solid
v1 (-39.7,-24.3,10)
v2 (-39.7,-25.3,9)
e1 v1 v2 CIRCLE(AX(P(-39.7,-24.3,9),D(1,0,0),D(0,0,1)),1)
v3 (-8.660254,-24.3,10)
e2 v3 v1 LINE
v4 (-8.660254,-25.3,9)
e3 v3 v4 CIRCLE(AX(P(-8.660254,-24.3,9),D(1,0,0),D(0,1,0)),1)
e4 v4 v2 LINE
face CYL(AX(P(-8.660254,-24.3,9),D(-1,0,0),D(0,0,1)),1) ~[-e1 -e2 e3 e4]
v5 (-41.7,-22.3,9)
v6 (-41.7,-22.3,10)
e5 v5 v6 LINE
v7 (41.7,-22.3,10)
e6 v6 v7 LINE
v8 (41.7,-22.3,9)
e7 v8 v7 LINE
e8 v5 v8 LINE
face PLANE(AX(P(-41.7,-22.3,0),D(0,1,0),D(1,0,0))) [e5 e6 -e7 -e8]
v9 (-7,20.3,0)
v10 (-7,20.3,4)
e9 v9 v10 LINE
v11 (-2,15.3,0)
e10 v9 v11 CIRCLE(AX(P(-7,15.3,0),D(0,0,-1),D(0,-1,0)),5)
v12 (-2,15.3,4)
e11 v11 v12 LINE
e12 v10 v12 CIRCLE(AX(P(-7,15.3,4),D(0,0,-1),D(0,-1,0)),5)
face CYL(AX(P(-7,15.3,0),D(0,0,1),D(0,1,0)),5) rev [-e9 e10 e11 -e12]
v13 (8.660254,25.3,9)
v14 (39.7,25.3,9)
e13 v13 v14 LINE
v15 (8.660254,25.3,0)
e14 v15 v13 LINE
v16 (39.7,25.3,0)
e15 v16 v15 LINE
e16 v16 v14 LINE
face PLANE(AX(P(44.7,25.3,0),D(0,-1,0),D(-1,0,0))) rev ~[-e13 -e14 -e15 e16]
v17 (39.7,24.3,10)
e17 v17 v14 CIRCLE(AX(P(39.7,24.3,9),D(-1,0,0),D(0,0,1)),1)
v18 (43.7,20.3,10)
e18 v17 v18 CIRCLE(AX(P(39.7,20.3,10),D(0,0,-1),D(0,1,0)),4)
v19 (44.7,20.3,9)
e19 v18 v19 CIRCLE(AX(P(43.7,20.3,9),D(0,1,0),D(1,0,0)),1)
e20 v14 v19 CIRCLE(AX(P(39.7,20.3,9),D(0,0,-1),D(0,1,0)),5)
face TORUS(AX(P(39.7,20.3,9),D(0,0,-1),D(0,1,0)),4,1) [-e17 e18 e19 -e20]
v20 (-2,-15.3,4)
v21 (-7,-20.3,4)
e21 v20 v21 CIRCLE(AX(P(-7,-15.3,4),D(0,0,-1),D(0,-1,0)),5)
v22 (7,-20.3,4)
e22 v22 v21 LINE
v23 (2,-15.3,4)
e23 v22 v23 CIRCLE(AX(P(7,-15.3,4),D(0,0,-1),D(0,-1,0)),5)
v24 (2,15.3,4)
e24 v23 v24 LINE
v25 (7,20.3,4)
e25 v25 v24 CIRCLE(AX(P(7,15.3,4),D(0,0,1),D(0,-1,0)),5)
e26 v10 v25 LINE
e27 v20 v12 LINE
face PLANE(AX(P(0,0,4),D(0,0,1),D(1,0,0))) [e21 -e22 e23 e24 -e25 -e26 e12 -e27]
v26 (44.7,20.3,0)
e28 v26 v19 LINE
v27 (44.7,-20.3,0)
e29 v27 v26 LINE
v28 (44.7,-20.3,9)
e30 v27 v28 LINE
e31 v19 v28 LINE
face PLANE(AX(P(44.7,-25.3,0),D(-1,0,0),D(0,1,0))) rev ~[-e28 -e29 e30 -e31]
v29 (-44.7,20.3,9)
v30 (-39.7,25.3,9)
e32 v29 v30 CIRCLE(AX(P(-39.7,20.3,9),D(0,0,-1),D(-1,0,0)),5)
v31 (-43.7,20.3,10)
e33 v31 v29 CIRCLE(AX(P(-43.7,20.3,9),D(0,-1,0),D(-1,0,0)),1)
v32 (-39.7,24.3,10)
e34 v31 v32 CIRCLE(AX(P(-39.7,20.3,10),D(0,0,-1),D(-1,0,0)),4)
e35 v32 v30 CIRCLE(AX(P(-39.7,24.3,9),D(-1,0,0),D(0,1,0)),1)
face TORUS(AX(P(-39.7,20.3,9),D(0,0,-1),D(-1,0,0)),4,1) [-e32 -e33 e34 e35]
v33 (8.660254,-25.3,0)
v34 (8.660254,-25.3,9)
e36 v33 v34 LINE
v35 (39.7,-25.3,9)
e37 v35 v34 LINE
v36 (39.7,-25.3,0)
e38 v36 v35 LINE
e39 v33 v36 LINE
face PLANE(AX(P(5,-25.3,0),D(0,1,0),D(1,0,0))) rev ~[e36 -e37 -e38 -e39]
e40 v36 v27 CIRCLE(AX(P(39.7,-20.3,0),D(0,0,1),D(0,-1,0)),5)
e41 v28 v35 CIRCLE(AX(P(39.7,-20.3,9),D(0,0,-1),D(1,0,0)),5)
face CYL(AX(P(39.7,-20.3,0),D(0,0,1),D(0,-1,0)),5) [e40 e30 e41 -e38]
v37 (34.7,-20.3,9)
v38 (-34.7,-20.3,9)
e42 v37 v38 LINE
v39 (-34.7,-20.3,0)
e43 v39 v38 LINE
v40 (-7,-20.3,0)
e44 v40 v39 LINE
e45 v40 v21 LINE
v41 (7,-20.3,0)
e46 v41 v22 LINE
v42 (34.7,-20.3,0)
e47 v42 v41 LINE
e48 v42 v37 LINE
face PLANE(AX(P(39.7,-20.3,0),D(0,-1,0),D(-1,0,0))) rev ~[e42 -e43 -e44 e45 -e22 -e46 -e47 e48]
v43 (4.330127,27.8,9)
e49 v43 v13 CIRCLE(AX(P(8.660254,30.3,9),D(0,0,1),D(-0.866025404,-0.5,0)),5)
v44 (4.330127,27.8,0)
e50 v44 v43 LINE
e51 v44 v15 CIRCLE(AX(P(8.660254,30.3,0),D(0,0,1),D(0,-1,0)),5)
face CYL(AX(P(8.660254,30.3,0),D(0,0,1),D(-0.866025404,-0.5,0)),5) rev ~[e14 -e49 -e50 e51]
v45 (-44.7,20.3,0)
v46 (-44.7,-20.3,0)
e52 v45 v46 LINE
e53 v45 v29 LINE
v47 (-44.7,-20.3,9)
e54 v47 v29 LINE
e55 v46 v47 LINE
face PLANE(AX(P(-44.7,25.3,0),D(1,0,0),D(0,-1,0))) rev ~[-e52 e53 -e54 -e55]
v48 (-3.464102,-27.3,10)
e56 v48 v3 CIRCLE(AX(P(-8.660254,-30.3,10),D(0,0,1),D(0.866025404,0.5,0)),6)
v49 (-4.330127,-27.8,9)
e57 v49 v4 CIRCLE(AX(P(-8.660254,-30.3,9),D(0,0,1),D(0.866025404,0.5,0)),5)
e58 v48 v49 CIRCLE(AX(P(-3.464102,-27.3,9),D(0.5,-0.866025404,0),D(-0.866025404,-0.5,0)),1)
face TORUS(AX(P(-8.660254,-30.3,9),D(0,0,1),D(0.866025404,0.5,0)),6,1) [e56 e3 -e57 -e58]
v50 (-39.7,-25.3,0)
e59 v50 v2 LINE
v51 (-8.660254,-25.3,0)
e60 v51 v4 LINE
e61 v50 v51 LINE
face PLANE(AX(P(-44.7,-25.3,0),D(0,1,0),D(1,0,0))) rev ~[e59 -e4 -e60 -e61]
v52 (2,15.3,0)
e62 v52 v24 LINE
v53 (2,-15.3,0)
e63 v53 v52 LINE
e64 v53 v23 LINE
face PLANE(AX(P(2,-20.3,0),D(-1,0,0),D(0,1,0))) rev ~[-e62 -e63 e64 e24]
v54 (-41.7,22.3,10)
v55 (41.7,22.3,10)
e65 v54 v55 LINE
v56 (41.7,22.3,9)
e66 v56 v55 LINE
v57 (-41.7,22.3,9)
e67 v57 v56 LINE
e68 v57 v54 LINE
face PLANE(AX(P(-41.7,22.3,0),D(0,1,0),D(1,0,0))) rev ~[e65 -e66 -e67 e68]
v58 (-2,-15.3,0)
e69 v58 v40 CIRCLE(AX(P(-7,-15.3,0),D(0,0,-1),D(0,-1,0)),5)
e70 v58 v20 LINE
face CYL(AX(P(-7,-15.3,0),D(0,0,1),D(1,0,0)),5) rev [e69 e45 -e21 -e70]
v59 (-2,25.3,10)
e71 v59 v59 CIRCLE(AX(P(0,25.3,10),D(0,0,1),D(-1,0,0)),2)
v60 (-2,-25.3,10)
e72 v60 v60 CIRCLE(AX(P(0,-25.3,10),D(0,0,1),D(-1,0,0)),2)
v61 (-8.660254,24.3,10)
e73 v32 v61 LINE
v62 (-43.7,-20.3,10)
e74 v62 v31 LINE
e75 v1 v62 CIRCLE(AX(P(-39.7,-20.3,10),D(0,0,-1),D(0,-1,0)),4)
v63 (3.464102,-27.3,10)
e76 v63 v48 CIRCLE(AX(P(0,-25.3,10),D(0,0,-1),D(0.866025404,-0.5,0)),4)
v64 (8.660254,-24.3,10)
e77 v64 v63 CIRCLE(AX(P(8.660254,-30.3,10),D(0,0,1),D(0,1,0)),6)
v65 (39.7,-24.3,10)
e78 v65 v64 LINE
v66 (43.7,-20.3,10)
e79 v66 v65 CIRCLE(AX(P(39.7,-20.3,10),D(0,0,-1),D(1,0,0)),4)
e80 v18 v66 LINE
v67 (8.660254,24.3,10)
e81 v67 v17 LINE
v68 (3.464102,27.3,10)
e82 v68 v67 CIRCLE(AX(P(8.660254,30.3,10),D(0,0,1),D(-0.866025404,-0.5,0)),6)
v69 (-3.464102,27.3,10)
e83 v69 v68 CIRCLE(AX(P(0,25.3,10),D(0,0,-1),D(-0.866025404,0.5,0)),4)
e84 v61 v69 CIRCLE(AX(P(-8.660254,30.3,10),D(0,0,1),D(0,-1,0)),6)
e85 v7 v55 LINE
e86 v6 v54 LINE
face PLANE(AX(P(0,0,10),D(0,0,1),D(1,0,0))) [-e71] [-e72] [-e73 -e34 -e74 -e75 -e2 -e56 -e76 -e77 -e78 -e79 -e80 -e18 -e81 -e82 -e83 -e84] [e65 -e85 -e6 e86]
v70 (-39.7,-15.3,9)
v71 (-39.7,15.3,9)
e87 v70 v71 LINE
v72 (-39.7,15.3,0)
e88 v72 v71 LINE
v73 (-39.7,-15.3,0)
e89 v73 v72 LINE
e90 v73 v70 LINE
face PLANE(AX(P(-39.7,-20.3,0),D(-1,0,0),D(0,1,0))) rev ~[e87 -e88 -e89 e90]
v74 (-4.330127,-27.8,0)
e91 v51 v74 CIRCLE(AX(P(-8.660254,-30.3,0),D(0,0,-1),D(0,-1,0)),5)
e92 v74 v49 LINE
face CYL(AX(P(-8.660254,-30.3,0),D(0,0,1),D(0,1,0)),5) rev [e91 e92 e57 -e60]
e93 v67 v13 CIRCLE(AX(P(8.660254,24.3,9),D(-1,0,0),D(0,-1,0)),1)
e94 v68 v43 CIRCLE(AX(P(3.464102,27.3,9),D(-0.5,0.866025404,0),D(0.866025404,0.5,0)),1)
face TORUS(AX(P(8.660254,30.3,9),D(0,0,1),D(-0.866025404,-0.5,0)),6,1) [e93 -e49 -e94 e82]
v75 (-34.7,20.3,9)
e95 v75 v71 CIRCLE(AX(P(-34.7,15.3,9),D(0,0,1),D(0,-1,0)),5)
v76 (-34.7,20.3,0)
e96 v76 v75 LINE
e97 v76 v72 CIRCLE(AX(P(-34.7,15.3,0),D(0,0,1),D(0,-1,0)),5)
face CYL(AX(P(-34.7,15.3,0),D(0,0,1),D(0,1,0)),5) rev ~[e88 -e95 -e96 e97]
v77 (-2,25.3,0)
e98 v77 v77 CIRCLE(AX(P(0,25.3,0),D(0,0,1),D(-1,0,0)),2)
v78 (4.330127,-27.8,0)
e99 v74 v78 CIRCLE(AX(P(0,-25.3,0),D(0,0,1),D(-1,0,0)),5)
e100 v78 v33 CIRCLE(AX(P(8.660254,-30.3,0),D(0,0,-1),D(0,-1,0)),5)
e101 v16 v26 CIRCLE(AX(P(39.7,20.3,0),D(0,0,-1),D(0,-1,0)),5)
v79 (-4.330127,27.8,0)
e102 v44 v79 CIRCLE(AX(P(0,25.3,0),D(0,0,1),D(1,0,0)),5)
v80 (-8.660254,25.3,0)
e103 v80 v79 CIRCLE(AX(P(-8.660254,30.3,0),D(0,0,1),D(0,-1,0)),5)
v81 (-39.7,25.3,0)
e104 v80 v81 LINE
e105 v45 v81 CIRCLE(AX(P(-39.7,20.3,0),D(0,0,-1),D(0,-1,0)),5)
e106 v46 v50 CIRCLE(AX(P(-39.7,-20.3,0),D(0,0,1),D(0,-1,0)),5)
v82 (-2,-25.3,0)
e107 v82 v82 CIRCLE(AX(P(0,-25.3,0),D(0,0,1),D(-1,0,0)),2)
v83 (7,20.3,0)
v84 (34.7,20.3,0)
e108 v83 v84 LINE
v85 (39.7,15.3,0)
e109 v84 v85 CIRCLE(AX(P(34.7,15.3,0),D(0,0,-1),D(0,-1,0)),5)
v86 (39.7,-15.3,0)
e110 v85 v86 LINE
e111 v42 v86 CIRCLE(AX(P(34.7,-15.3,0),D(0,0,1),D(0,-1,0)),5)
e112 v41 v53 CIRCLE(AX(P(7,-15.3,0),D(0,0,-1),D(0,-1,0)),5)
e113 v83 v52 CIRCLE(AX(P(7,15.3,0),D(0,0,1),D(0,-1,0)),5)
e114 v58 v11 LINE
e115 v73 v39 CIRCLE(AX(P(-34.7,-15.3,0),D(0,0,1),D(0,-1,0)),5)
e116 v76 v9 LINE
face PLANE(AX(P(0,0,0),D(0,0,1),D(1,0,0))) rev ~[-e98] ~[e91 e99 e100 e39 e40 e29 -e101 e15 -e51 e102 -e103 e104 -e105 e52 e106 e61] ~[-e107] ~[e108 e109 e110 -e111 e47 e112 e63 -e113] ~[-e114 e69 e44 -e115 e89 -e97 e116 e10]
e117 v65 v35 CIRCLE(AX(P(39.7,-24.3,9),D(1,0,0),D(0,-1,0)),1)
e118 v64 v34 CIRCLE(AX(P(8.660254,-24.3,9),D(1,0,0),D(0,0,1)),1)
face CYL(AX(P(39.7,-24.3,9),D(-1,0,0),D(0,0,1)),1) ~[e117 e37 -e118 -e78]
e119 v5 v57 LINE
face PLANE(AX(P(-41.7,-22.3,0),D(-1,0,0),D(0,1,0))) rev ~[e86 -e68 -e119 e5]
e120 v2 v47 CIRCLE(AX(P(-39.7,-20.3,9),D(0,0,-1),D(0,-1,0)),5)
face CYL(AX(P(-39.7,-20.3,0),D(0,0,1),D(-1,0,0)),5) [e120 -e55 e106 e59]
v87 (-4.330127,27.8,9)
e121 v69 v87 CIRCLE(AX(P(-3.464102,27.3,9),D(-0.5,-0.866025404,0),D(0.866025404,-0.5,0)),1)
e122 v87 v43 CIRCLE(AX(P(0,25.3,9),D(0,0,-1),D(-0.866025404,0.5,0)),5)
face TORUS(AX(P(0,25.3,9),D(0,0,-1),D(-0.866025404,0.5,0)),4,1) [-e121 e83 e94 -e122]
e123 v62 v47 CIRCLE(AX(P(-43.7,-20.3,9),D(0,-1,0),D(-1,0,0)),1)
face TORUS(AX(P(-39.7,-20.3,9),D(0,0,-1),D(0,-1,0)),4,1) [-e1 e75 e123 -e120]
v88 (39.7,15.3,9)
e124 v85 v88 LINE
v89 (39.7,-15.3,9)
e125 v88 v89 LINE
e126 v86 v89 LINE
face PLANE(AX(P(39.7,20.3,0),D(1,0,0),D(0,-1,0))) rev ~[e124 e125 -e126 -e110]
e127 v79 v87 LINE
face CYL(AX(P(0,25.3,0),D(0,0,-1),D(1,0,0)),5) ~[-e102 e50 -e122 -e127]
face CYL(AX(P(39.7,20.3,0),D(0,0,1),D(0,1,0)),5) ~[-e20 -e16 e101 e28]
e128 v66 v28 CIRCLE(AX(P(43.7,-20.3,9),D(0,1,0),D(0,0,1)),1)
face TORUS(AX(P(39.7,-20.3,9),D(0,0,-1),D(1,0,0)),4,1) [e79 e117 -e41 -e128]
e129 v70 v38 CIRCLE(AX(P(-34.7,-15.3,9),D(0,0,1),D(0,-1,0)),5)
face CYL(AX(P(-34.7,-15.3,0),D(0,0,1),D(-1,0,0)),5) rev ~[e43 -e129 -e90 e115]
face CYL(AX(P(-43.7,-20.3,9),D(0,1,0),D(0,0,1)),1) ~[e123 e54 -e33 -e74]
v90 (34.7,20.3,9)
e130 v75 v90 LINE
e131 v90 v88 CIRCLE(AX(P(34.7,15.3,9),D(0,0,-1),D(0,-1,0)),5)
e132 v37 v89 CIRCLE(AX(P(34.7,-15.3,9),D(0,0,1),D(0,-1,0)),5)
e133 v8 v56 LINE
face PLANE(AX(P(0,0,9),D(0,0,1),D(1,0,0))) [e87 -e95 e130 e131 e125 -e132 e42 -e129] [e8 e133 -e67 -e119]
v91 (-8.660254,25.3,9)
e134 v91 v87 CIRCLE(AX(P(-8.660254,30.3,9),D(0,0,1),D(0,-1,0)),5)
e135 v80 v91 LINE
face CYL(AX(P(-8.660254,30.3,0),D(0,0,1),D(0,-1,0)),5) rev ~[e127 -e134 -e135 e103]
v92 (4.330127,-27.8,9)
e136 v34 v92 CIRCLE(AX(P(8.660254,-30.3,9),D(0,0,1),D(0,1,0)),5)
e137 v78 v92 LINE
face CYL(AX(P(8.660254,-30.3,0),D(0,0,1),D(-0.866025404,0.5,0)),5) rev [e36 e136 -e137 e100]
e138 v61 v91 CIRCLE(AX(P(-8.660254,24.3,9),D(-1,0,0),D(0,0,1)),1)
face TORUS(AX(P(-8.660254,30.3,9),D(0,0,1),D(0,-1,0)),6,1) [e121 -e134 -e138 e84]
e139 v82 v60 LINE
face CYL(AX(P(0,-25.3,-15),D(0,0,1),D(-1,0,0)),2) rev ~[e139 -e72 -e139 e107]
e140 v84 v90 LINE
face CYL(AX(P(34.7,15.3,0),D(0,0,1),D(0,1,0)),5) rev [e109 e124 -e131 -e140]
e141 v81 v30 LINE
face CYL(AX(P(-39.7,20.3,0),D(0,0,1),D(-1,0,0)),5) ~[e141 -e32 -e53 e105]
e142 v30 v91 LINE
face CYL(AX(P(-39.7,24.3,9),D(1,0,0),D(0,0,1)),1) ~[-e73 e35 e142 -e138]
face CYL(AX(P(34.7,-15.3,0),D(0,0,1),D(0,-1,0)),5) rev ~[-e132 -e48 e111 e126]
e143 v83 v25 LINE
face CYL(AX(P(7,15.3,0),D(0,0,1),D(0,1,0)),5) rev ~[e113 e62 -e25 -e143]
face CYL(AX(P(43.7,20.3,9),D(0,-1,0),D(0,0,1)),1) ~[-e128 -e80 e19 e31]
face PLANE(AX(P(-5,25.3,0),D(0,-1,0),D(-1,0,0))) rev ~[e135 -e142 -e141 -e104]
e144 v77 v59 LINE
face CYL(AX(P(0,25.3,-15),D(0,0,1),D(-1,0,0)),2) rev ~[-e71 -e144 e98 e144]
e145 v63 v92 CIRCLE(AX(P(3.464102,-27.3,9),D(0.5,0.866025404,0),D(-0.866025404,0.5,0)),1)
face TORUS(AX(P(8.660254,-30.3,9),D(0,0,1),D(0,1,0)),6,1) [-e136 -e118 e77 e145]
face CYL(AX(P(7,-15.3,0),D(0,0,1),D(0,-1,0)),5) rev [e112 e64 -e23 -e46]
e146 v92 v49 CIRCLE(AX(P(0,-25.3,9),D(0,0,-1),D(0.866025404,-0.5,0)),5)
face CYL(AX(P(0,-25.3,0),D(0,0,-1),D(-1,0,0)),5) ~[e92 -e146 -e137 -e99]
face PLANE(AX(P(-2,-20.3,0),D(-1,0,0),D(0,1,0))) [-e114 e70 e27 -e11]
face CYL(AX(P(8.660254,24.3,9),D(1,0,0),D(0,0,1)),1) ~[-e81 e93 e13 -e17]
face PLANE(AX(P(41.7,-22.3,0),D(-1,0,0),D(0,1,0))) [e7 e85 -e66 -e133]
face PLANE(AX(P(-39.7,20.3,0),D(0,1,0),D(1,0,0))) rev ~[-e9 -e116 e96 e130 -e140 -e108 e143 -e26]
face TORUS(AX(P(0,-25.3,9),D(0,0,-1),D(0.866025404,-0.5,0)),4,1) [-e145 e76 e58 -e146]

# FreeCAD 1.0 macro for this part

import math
import FreeCAD as App
import Part
import Sketcher
Q = App.Units.Quantity


def edges_at(feature, points):
    """Names of the edges that pass closest to the given points."""
    edges = feature.Shape.Edges
    near = lambda p: min(range(len(edges)), key=lambda i: edges[i].distToShape(Part.Vertex(*p))[0])
    return sorted({f"Edge{near(p) + 1}" for p in points})


def add_polygon(sketch, points):
    """Adds a closed chain of lines whose ends are joined by coincident constraints."""
    first, n = sketch.GeometryCount, len(points)
    for a, b in zip(points, points[1:] + points[:1]):
        sketch.addGeometry(Part.LineSegment(App.Vector(*a, 0), App.Vector(*b, 0)), False)
    for i in range(n):
        sketch.addConstraint(Sketcher.Constraint("Coincident", first + i, 2, first + (i + 1) % n, 1))

doc = App.newDocument("Part")
body = doc.addObject("PartDesign::Body", "Body")

# Sketch on XY plane
sketch1 = body.newObject("Sketcher::SketchObject", "Sketch")
sketch1.AttachmentSupport = (doc.getObject("XY_Plane"), [""])
sketch1.MapMode = "FlatFace"
add_polygon(sketch1, [(-42, 22), (-42, -22), (42, -22), (42, 22)])  # lines 0-3
add_polygon(sketch1, [(40, -20), (-40, -20), (-40, 20), (40, 20)])  # lines 4-7
sketch1.addConstraint([
    Sketcher.Constraint("Vertical", 0),
    Sketcher.Constraint("Horizontal", 1),
    Sketcher.Constraint("Vertical", 2),
    Sketcher.Constraint("Horizontal", 3),
    Sketcher.Constraint("Horizontal", 4),
    Sketcher.Constraint("Vertical", 5),
    Sketcher.Constraint("Horizontal", 6),
    Sketcher.Constraint("Vertical", 7),
    Sketcher.Constraint("Symmetric", 0, 2, 2, 2, -1, 1),
    Sketcher.Constraint("Symmetric", 4, 2, 6, 2, -1, 1),
    Sketcher.Constraint("DistanceX", 1, 1, 1, 2, Q("83.4 mm")),
    Sketcher.Constraint("DistanceX", 4, 2, 4, 1, Q("79.4 mm")),
    Sketcher.Constraint("DistanceY", 0, 2, 0, 1, Q("44.6 mm")),
    Sketcher.Constraint("DistanceY", 5, 1, 5, 2, Q("40.6 mm")),
])
pad1 = body.newObject("PartDesign::Pad", "Pad")
pad1.Profile = sketch1
pad1.Length = 9

# Sketch on XY plane
sketch2 = body.newObject("Sketcher::SketchObject", "Sketch001")
sketch2.AttachmentSupport = (doc.getObject("XY_Plane"), [""])
sketch2.MapMode = "FlatFace"
sketch2.addGeometry(Part.LineSegment(App.Vector(-45, 25, 0), App.Vector(-45, -25, 0)), False)  # 0
sketch2.addGeometry(Part.LineSegment(App.Vector(-45, -25, 0), App.Vector(-5, -25, 0)), False)  # 1
sketch2.addGeometry(Part.ArcOfCircle(Part.Circle(App.Vector(0, -25, 0), App.Vector(0, 0, 1), 5), math.radians(180), math.radians(360)), False)  # 2
sketch2.addGeometry(Part.LineSegment(App.Vector(5, -25, 0), App.Vector(45, -25, 0)), False)  # 3
sketch2.addGeometry(Part.LineSegment(App.Vector(45, -25, 0), App.Vector(45, 25, 0)), False)  # 4
sketch2.addGeometry(Part.LineSegment(App.Vector(45, 25, 0), App.Vector(5, 25, 0)), False)  # 5
sketch2.addGeometry(Part.ArcOfCircle(Part.Circle(App.Vector(0, 25, 0), App.Vector(0, 0, 1), 5), math.radians(0), math.radians(180)), False)  # 6
sketch2.addGeometry(Part.LineSegment(App.Vector(-5, 25, 0), App.Vector(-45, 25, 0)), False)  # 7
add_polygon(sketch2, [(42, -22), (-42, -22), (-42, 22), (42, 22)])  # lines 8-11
sketch2.addConstraint([
    Sketcher.Constraint("Coincident", 0, 2, 1, 1),
    Sketcher.Constraint("Coincident", 1, 2, 2, 1),
    Sketcher.Constraint("Coincident", 2, 2, 3, 1),
    Sketcher.Constraint("Coincident", 3, 2, 4, 1),
    Sketcher.Constraint("Coincident", 4, 2, 5, 1),
    Sketcher.Constraint("Coincident", 5, 2, 6, 1),
    Sketcher.Constraint("Coincident", 6, 2, 7, 1),
    Sketcher.Constraint("Coincident", 7, 2, 0, 1),
    Sketcher.Constraint("Vertical", 0),
    Sketcher.Constraint("Horizontal", 1),
    Sketcher.Constraint("Horizontal", 3),
    Sketcher.Constraint("Vertical", 4),
    Sketcher.Constraint("Horizontal", 5),
    Sketcher.Constraint("Horizontal", 7),
    Sketcher.Constraint("Horizontal", 8),
    Sketcher.Constraint("Vertical", 9),
    Sketcher.Constraint("Horizontal", 10),
    Sketcher.Constraint("Vertical", 11),
    Sketcher.Constraint("Equal", 2, 6),
    Sketcher.Constraint("Symmetric", 2, 3, 6, 3, -1, 1),
    Sketcher.Constraint("Symmetric", 0, 2, 4, 2, -1, 1),
    Sketcher.Constraint("Symmetric", 8, 2, 10, 2, -1, 1),
    Sketcher.Constraint("Symmetric", 1, 2, 2, 2, -2),
    Sketcher.Constraint("Horizontal", 2, 3, 0, 2),
    Sketcher.Constraint("Horizontal", 5, 2, 6, 2),
    Sketcher.Constraint("Radius", 2, Q("5 mm")),
    Sketcher.Constraint("DistanceX", 1, 1, 1, 2, Q("39.7 mm")),
    Sketcher.Constraint("DistanceX", 8, 2, 8, 1, Q("83.4 mm")),
    Sketcher.Constraint("DistanceY", 0, 2, 0, 1, Q("50.6 mm")),
    Sketcher.Constraint("DistanceY", 9, 1, 9, 2, Q("44.6 mm")),
])
pad2 = body.newObject("PartDesign::Pad", "Pad001")
pad2.Profile = sketch2
pad2.Length = 10

# Sketch on XY plane
sketch3 = body.newObject("Sketcher::SketchObject", "Sketch002")
sketch3.AttachmentSupport = (doc.getObject("XY_Plane"), [""])
sketch3.MapMode = "FlatFace"
add_polygon(sketch3, [(-2, 20.3), (-2, -20.3), (2, -20.3), (2, 20.3)])  # lines 0-3
sketch3.addConstraint([
    Sketcher.Constraint("Vertical", 0),
    Sketcher.Constraint("Horizontal", 1),
    Sketcher.Constraint("Vertical", 2),
    Sketcher.Constraint("Horizontal", 3),
    Sketcher.Constraint("Symmetric", 0, 2, 2, 2, -1, 1),
    Sketcher.Constraint("DistanceX", 1, 1, 1, 2, Q("4 mm")),
    Sketcher.Constraint("DistanceY", 0, 2, 0, 1, Q("40.6 mm")),
])
pad3 = body.newObject("PartDesign::Pad", "Pad002")
pad3.Profile = sketch3
pad3.Length = 4

# Sketch on XY plane
sketch4 = body.newObject("Sketcher::SketchObject", "Sketch003")
sketch4.AttachmentSupport = (doc.getObject("XY_Plane"), [""])
sketch4.MapMode = "FlatFace"
sketch4.addGeometry([
    Part.Circle(App.Vector(0, 25.3, 0), App.Vector(0, 0, 1), 2),
    Part.Circle(App.Vector(0, -25.3, 0), App.Vector(0, 0, 1), 2),
], False)
sketch4.addConstraint([
    Sketcher.Constraint("Equal", 0, 1),
    Sketcher.Constraint("Symmetric", 0, 3, 1, 3, -1, 1),
    Sketcher.Constraint("PointOnObject", 0, 3, -2),
    Sketcher.Constraint("Diameter", 0, Q("4 mm")),
    Sketcher.Constraint("DistanceY", -1, 1, 0, 3, Q("25.3 mm")),
])
doc.recompute()
hole = body.newObject("PartDesign::Hole", "Hole")
hole.Profile = sketch4
hole.ThreadType = "None"
hole.Diameter = 4
hole.DepthType = "Dimension"
hole.Depth = 15
hole.DrillPoint = "Angled"
hole.DrillPointAngle = 118
hole.Reversed = True
doc.recompute()

fillet = body.newObject("PartDesign::Fillet", "Fillet")
fillet.Base = (hole, edges_at(hole, [
    (-44.7, 25.3, 5),
    (-5, 25.3, 5),
    (5, 25.3, 5),
    (44.7, 25.3, 5),
    (44.7, -25.3, 5),
    (-5, -25.3, 5),
    (5, -25.3, 5),
    (-44.7, -25.3, 5),
    (2, 20.3, 2),
    (-2, 20.3, 2),
    (2, -20.3, 2),
    (-2, -20.3, 2),
    (39.7, 20.3, 4.5),
    (-39.7, 20.3, 4.5),
    (-39.7, -20.3, 4.5),
    (39.7, -20.3, 4.5),
]))
fillet.Radius = 5
doc.recompute()

fillet2 = body.newObject("PartDesign::Fillet", "Fillet001")
fillet2.Base = (fillet, edges_at(fillet, [(-43.236, 23.836, 10)]))
fillet2.Radius = 1

doc.recompute()
